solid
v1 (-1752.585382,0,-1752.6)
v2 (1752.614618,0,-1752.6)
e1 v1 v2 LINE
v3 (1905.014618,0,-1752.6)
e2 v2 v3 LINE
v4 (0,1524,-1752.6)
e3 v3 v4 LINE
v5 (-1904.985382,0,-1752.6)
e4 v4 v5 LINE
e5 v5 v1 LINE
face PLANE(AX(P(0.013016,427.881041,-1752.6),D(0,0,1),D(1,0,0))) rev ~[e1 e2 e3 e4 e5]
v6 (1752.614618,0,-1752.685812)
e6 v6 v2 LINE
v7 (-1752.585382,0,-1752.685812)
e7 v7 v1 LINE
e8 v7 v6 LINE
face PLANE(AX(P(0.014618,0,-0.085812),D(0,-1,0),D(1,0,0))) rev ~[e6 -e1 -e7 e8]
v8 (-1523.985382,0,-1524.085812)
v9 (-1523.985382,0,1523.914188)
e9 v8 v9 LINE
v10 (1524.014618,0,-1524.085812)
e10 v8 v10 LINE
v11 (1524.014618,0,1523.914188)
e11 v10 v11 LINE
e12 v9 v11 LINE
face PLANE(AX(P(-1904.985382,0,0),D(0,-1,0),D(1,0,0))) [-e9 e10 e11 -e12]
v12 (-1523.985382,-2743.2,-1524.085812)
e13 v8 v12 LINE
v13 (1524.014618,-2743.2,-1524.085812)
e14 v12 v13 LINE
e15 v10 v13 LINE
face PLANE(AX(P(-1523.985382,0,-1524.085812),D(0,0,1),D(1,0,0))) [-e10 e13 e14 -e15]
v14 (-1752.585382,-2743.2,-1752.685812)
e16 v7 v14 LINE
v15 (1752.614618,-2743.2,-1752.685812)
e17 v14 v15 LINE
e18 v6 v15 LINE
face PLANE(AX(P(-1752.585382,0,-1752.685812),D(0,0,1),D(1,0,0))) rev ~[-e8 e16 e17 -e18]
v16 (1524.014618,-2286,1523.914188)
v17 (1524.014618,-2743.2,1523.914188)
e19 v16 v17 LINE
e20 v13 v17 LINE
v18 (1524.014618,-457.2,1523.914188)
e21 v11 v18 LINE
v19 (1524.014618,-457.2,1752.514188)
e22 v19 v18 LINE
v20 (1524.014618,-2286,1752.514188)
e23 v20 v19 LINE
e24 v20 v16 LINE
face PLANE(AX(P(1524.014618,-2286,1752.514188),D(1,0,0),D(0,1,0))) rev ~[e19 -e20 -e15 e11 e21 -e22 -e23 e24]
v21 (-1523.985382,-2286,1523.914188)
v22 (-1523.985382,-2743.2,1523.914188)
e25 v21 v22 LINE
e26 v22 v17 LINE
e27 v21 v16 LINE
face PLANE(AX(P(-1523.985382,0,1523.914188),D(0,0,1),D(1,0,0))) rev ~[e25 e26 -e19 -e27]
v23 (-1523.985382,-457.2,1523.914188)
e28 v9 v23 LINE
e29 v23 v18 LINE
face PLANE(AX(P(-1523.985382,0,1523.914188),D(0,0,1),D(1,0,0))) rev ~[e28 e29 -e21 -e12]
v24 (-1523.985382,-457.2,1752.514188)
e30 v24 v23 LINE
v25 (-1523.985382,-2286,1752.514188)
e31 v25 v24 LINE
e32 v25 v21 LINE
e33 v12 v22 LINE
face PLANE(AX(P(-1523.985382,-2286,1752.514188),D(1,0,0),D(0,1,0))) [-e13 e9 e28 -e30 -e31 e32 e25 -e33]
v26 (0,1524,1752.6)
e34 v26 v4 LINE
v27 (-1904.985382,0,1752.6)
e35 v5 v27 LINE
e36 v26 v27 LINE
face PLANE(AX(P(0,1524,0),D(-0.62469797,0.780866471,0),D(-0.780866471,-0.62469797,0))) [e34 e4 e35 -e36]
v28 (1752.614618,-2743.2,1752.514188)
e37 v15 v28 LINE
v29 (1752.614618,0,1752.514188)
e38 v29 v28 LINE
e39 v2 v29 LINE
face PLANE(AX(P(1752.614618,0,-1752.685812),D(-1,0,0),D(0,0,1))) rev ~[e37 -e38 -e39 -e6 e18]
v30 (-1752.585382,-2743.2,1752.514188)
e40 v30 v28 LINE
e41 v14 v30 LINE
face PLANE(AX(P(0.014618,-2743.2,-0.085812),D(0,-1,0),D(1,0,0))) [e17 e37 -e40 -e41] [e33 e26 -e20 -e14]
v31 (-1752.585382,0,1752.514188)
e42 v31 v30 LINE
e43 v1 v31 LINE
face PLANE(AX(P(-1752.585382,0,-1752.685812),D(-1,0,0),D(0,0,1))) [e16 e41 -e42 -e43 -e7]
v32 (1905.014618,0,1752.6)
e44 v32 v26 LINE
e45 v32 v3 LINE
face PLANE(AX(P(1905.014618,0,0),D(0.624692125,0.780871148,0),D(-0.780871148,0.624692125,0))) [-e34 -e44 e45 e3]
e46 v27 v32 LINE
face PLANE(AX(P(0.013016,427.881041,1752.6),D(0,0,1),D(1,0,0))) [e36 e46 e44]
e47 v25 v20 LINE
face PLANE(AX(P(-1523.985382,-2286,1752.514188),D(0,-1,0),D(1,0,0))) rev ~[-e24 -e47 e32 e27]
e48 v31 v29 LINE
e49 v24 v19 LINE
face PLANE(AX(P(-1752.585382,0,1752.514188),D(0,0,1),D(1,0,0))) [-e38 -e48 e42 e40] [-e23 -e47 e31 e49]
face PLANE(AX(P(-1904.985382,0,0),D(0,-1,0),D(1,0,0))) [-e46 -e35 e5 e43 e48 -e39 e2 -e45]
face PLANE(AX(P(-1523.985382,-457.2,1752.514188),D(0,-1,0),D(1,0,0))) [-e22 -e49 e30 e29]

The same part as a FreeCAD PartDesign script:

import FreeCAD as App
import Part
import Sketcher

V = App.Vector
Q = App.Units.Quantity


def add_polygon(sketch, points):
    """Adds a closed chain of lines whose ends are joined by coincident constraints."""
    first, n = sketch.GeometryCount, len(points)
    for a, b in zip(points, points[1:] + points[:1]):
        sketch.addGeometry(Part.LineSegment(App.Vector(*a, 0), App.Vector(*b, 0)), False)
    for i in range(n):
        sketch.addConstraint(Sketcher.Constraint("Coincident", first + i, 2, first + (i + 1) % n, 1))

doc = App.newDocument("Part")
body = doc.addObject("PartDesign::Body", "Body")

# Sketch on XZ plane
sketch1 = body.newObject("Sketcher::SketchObject", "Sketch")
sketch1.AttachmentSupport = (doc.getObject("XZ_Plane"), [""])
sketch1.MapMode = "FlatFace"
add_polygon(sketch1, [(-1753, 1753), (-1753, -1753), (1753, -1753), (1753, 1753)])  # lines 0-3
add_polygon(sketch1, [(1524, -1524), (-1524, -1524), (-1524, 1524), (1524, 1524)])  # lines 4-7
sketch1.addConstraint(Sketcher.Constraint("Vertical", 0))
sketch1.addConstraint(Sketcher.Constraint("Horizontal", 1))
sketch1.addConstraint(Sketcher.Constraint("Vertical", 2))
sketch1.addConstraint(Sketcher.Constraint("Horizontal", 3))
sketch1.addConstraint(Sketcher.Constraint("Horizontal", 4))
sketch1.addConstraint(Sketcher.Constraint("Vertical", 5))
sketch1.addConstraint(Sketcher.Constraint("Horizontal", 6))
sketch1.addConstraint(Sketcher.Constraint("Vertical", 7))
sketch1.addConstraint(Sketcher.Constraint("Equal", 3, 0))
sketch1.addConstraint(Sketcher.Constraint("Equal", 6, 5))
sketch1.addConstraint(Sketcher.Constraint("DistanceX", 1, 1, 1, 2, Q("138 in")))
sketch1.addConstraint(Sketcher.Constraint("DistanceX", 4, 2, 4, 1, Q("120 in")))
sketch1.addConstraint(Sketcher.Constraint("DistanceX", 0, 2, 4, 2, Q("9 in")))
sketch1.addConstraint(Sketcher.Constraint("DistanceY", 0, 2, 4, 2, Q("9 in")))
sketch1.addConstraint(Sketcher.Constraint("DistanceX", 0, 2, -1, 1, 1752.585382))
sketch1.addConstraint(Sketcher.Constraint("DistanceY", 0, 2, -1, 1, 1752.685812))
pad1 = body.newObject("PartDesign::Pad", "Pad")
pad1.Profile = sketch1
pad1.Length = Q("108 in")

# Sketch on XY plane
sketch2 = body.newObject("Sketcher::SketchObject", "Sketch001")
sketch2.AttachmentSupport = (doc.getObject("XY_Plane"), [""])
sketch2.MapMode = "FlatFace"
add_polygon(sketch2, [(0, 1524), (-1905, 0), (1905, 0)])  # lines 0-2
sketch2.addConstraint(Sketcher.Constraint("Horizontal", 1))
sketch2.addConstraint(Sketcher.Constraint("PointOnObject", 0, 2, -1))
sketch2.addConstraint(Sketcher.Constraint("PointOnObject", 2, 2, -2))
sketch2.addConstraint(Sketcher.Constraint("DistanceX", 1, 1, 1, 2, Q("150 in")))
sketch2.addConstraint(Sketcher.Constraint("DistanceY", -1, 1, 2, 2, Q("60 in")))
sketch2.addConstraint(Sketcher.Constraint("Distance", 0, 2439.57892))
pad2 = body.newObject("PartDesign::Pad", "Pad001")
pad2.Profile = sketch2
pad2.Length = Q("138 in")
pad2.Midplane = True

# Sketch on XY plane
sketch3 = body.newObject("Sketcher::SketchObject", "Sketch002")
sketch3.AttachmentSupport = (doc.getObject("XY_Plane"), [""])
sketch3.MapMode = "FlatFace"
sketch3.AttachmentOffset = App.Placement(V(0, 0, 1752.514188), App.Rotation())
add_polygon(sketch3, [(-1524, -457), (-1524, -2286), (1524, -2286), (1524, -457)])  # lines 0-3
sketch3.addConstraint(Sketcher.Constraint("Vertical", 0))
sketch3.addConstraint(Sketcher.Constraint("Horizontal", 1))
sketch3.addConstraint(Sketcher.Constraint("Vertical", 2))
sketch3.addConstraint(Sketcher.Constraint("Horizontal", 3))
sketch3.addConstraint(Sketcher.Constraint("DistanceX", 1, 1, 1, 2, Q("120 in")))
sketch3.addConstraint(Sketcher.Constraint("DistanceY", 0, 2, 0, 1, Q("72 in")))
sketch3.addConstraint(Sketcher.Constraint("DistanceY", 0, 2, -1, 1, Q("90 in")))
sketch3.addConstraint(Sketcher.Constraint("DistanceX", 0, 2, -1, 1, 1523.985382))
pocket1 = body.newObject("PartDesign::Pocket", "Pocket")
pocket1.Profile = sketch3
pocket1.Length = Q("12 in")

doc.recompute()
